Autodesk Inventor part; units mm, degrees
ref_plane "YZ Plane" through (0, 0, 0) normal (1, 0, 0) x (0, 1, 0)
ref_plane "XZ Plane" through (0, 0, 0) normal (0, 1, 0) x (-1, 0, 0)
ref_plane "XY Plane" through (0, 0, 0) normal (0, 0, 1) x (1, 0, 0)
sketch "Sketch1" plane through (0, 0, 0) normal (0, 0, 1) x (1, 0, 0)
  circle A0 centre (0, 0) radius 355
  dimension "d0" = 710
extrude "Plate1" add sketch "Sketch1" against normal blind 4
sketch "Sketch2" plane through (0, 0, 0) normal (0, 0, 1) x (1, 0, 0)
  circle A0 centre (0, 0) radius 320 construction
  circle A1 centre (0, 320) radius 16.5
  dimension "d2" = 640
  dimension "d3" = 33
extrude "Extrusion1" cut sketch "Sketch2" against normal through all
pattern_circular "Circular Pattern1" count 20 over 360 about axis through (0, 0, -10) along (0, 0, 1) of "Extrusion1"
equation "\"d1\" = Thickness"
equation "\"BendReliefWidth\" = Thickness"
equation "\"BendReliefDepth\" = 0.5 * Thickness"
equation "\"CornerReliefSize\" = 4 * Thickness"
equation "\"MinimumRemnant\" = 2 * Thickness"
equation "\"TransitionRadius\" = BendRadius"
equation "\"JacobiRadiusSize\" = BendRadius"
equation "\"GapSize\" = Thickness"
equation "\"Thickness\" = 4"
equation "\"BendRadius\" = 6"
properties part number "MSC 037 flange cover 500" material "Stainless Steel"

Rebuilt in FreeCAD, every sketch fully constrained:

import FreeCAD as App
import Part
import Sketcher

V = App.Vector

doc = App.newDocument("Part")
params = doc.addObject("Spreadsheet::Sheet", "Params")
for row, (alias, value) in enumerate([
    ("sketch1_diameter", "710 mm"),
    ("pad1_length", "4 mm"),
    ("sketch2_diameter", "33 mm"),
], start=1):
    params.set(f"A{row}", alias)
    params.set(f"B{row}", "=" + value)
    params.setAlias(f"B{row}", alias)

body = doc.addObject("PartDesign::Body", "Body")

sketch1 = doc.addObject("Sketcher::SketchObject", "Sketch")
body.addObject(sketch1)
sketch1.AttachmentSupport = (doc.XY_Plane, [""])
sketch1.MapMode = "FlatFace"
sketch1.addGeometry(Part.Circle(V(0, 0, 0), V(0, 0, 1), 355), False)
sketch1.addConstraint([
    Sketcher.Constraint("Coincident", 0, 3, -1, 1),
    Sketcher.Constraint("Diameter", 0, 710.0),
])
sketch1.setExpression("Constraints[1]", "Params.sketch1_diameter")
pad1 = doc.addObject("PartDesign::Pad", "Pad")
body.addObject(pad1)
pad1.Profile = sketch1
pad1.setExpression("Length", "Params.pad1_length")
pad1.Reversed = True

sketch2 = doc.addObject("Sketcher::SketchObject", "Sketch001")
body.addObject(sketch2)
sketch2.AttachmentSupport = (doc.XY_Plane, [""])
sketch2.MapMode = "FlatFace"
sketch2.addGeometry(Part.Circle(V(0, 320, 0), V(0, 0, 1), 16), False)
sketch2.addConstraint([
    Sketcher.Constraint("PointOnObject", 0, 3, -2),
    Sketcher.Constraint("Diameter", 0, 33.0),
    Sketcher.Constraint("DistanceY", -1, 1, 0, 3, 320.0),
])
sketch2.setExpression("Constraints[1]", "Params.sketch2_diameter")
pocket1 = doc.addObject("PartDesign::Pocket", "Pocket")
body.addObject(pocket1)
pocket1.Profile = sketch2
pocket1.Type = "ThroughAll"
doc.recompute()

polarpattern = doc.addObject("PartDesign::PolarPattern", "PolarPattern")
body.addObject(polarpattern)
polarpattern.Originals = [pocket1]
polarpattern.Axis = (doc.Z_Axis, [""])
polarpattern.Angle = 360
polarpattern.Occurrences = 20
body.Tip = polarpattern

doc.recompute()
